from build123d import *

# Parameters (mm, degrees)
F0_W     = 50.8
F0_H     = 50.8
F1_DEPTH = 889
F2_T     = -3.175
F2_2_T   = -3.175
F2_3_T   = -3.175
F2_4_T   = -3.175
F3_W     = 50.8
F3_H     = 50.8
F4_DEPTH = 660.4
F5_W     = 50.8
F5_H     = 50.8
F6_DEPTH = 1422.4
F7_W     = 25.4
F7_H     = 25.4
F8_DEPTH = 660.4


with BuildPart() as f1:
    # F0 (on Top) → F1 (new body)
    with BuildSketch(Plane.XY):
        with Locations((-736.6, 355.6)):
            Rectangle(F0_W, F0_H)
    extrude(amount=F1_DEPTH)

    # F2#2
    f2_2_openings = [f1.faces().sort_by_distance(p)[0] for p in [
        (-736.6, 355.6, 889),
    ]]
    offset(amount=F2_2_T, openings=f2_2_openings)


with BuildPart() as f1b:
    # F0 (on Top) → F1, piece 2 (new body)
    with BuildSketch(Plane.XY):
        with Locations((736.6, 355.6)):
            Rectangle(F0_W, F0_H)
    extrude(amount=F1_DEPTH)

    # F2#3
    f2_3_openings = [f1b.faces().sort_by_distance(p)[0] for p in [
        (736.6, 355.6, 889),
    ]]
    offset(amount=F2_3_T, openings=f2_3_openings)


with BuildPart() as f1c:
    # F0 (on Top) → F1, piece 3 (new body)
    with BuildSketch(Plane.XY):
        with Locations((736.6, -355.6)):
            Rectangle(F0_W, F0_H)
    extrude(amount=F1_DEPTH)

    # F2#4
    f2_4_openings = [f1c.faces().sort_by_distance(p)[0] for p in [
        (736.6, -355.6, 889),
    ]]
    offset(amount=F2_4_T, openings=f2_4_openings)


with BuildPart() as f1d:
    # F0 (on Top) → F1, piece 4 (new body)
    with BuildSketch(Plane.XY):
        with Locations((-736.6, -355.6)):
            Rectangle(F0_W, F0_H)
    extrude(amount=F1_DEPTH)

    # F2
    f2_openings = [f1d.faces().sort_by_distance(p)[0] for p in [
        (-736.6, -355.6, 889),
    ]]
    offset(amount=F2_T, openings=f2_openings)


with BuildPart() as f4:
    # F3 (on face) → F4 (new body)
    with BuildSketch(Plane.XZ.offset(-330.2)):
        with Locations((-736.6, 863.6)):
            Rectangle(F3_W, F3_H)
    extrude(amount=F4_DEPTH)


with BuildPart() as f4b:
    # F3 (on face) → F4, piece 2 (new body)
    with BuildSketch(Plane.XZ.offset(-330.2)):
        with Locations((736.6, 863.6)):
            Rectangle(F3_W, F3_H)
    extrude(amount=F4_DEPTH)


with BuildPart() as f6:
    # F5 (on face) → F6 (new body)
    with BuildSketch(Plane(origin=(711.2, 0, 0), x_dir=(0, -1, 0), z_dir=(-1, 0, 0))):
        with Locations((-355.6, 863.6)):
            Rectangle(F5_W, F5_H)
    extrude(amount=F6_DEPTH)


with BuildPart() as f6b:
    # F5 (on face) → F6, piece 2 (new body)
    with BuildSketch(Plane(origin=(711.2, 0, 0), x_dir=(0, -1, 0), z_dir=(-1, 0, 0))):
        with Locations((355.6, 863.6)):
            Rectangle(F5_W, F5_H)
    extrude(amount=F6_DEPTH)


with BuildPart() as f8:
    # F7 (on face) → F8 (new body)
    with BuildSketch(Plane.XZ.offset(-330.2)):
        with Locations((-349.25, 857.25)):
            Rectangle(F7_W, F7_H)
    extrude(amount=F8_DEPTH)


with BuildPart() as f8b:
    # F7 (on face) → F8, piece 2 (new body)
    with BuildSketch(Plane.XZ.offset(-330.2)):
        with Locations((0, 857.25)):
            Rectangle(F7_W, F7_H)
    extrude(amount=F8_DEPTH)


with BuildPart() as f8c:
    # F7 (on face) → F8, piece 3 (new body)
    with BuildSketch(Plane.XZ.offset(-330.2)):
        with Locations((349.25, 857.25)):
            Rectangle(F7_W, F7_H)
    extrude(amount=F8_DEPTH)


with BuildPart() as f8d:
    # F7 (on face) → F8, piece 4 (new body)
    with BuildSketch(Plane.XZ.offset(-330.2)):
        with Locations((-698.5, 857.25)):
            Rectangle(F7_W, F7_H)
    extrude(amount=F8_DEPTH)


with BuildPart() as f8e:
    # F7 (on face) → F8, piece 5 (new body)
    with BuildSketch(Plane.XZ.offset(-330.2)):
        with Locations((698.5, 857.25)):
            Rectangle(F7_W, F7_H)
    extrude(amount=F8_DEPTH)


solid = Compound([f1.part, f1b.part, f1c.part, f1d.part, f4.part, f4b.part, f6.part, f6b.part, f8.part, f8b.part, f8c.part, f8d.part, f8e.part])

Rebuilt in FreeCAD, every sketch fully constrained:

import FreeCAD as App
import Part
import Sketcher
from FreeCAD import Vector
Q = App.Units.Quantity


def faces_at(feature, points):
    """Names of the faces that lie closest to the given points."""
    faces = feature.Shape.Faces
    near = lambda p: min(range(len(faces)), key=lambda i: faces[i].distToShape(Part.Vertex(*p))[0])
    return sorted({f"Face{near(p) + 1}" for p in points})

doc = App.newDocument("Part")
body = doc.addObject("PartDesign::Body", "Body")

# Sketch on XY plane
sketch1 = body.newObject("Sketcher::SketchObject", "Sketch")
sketch1.AttachmentSupport = (doc.getObject("XY_Plane"), [""])
sketch1.MapMode = "FlatFace"
sketch1.addGeometry(Part.LineSegment(Vector(-762, 381, 0), Vector(-762, 330, 0)), False)
sketch1.addGeometry(Part.LineSegment(Vector(-762, 330, 0), Vector(-711, 330, 0)), False)
sketch1.addGeometry(Part.LineSegment(Vector(-711, 330, 0), Vector(-711, 381, 0)), False)
sketch1.addGeometry(Part.LineSegment(Vector(-711, 381, 0), Vector(-762, 381, 0)), False)
sketch1.addConstraint(Sketcher.Constraint("Coincident", 0, 2, 1, 1))
sketch1.addConstraint(Sketcher.Constraint("Coincident", 1, 2, 2, 1))
sketch1.addConstraint(Sketcher.Constraint("Coincident", 2, 2, 3, 1))
sketch1.addConstraint(Sketcher.Constraint("Coincident", 3, 2, 0, 1))
sketch1.addConstraint(Sketcher.Constraint("Vertical", 0))
sketch1.addConstraint(Sketcher.Constraint("Horizontal", 1))
sketch1.addConstraint(Sketcher.Constraint("Vertical", 2))
sketch1.addConstraint(Sketcher.Constraint("Horizontal", 3))
sketch1.addConstraint(Sketcher.Constraint("Equal", 3, 0))
sketch1.addConstraint(Sketcher.Constraint("DistanceX", 1, 1, 1, 2, Q("2 in")))
sketch1.addConstraint(Sketcher.Constraint("DistanceX", 0, 2, -1, 1, Q("30 in")))
sketch1.addConstraint(Sketcher.Constraint("DistanceY", -1, 1, 0, 2, Q("13 in")))
pad1 = body.newObject("PartDesign::Pad", "Pad")
pad1.Profile = sketch1
pad1.Length = Q("35 in")
doc.recompute()

thickness = body.newObject("PartDesign::Thickness", "Thickness")
thickness.Base = (pad1, faces_at(pad1, [(-736.6, 355.6, 889)]))
thickness.Value = Q("0.125 in")
thickness.Reversed = True
thickness.Join = "Arc"
body2 = doc.addObject("PartDesign::Body", "Body001")

# Sketch on XY plane
sketch2 = body2.newObject("Sketcher::SketchObject", "Sketch001")
sketch2.AttachmentSupport = (doc.getObject("XY_Plane001"), [""])
sketch2.MapMode = "FlatFace"
sketch2.addGeometry(Part.LineSegment(Vector(711, 381, 0), Vector(711, 330, 0)), False)
sketch2.addGeometry(Part.LineSegment(Vector(711, 330, 0), Vector(762, 330, 0)), False)
sketch2.addGeometry(Part.LineSegment(Vector(762, 330, 0), Vector(762, 381, 0)), False)
sketch2.addGeometry(Part.LineSegment(Vector(762, 381, 0), Vector(711, 381, 0)), False)
sketch2.addConstraint(Sketcher.Constraint("Coincident", 0, 2, 1, 1))
sketch2.addConstraint(Sketcher.Constraint("Coincident", 1, 2, 2, 1))
sketch2.addConstraint(Sketcher.Constraint("Coincident", 2, 2, 3, 1))
sketch2.addConstraint(Sketcher.Constraint("Coincident", 3, 2, 0, 1))
sketch2.addConstraint(Sketcher.Constraint("Vertical", 0))
sketch2.addConstraint(Sketcher.Constraint("Horizontal", 1))
sketch2.addConstraint(Sketcher.Constraint("Vertical", 2))
sketch2.addConstraint(Sketcher.Constraint("Horizontal", 3))
sketch2.addConstraint(Sketcher.Constraint("Equal", 3, 0))
sketch2.addConstraint(Sketcher.Constraint("DistanceX", 1, 1, 1, 2, Q("2 in")))
sketch2.addConstraint(Sketcher.Constraint("DistanceX", -1, 1, 0, 2, Q("28 in")))
sketch2.addConstraint(Sketcher.Constraint("DistanceY", -1, 1, 0, 2, Q("13 in")))
pad2 = body2.newObject("PartDesign::Pad", "Pad001")
pad2.Profile = sketch2
pad2.Length = Q("35 in")
doc.recompute()

thickness2 = body2.newObject("PartDesign::Thickness", "Thickness001")
thickness2.Base = (pad2, faces_at(pad2, [(736.6, 355.6, 889)]))
thickness2.Value = Q("0.125 in")
thickness2.Reversed = True
thickness2.Join = "Arc"
body3 = doc.addObject("PartDesign::Body", "Body002")

# Sketch on XY plane
sketch3 = body3.newObject("Sketcher::SketchObject", "Sketch002")
sketch3.AttachmentSupport = (doc.getObject("XY_Plane002"), [""])
sketch3.MapMode = "FlatFace"
sketch3.addGeometry(Part.LineSegment(Vector(711, -330, 0), Vector(711, -381, 0)), False)
sketch3.addGeometry(Part.LineSegment(Vector(711, -381, 0), Vector(762, -381, 0)), False)
sketch3.addGeometry(Part.LineSegment(Vector(762, -381, 0), Vector(762, -330, 0)), False)
sketch3.addGeometry(Part.LineSegment(Vector(762, -330, 0), Vector(711, -330, 0)), False)
sketch3.addConstraint(Sketcher.Constraint("Coincident", 0, 2, 1, 1))
sketch3.addConstraint(Sketcher.Constraint("Coincident", 1, 2, 2, 1))
sketch3.addConstraint(Sketcher.Constraint("Coincident", 2, 2, 3, 1))
sketch3.addConstraint(Sketcher.Constraint("Coincident", 3, 2, 0, 1))
sketch3.addConstraint(Sketcher.Constraint("Vertical", 0))
sketch3.addConstraint(Sketcher.Constraint("Horizontal", 1))
sketch3.addConstraint(Sketcher.Constraint("Vertical", 2))
sketch3.addConstraint(Sketcher.Constraint("Horizontal", 3))
sketch3.addConstraint(Sketcher.Constraint("Equal", 3, 0))
sketch3.addConstraint(Sketcher.Constraint("DistanceX", 1, 1, 1, 2, Q("2 in")))
sketch3.addConstraint(Sketcher.Constraint("DistanceX", -1, 1, 0, 2, Q("28 in")))
sketch3.addConstraint(Sketcher.Constraint("DistanceY", 0, 2, -1, 1, Q("15 in")))
pad3 = body3.newObject("PartDesign::Pad", "Pad002")
pad3.Profile = sketch3
pad3.Length = Q("35 in")
doc.recompute()

thickness3 = body3.newObject("PartDesign::Thickness", "Thickness002")
thickness3.Base = (pad3, faces_at(pad3, [(736.6, -355.6, 889)]))
thickness3.Value = Q("0.125 in")
thickness3.Reversed = True
thickness3.Join = "Arc"
body4 = doc.addObject("PartDesign::Body", "Body003")

# Sketch on XY plane
sketch4 = body4.newObject("Sketcher::SketchObject", "Sketch003")
sketch4.AttachmentSupport = (doc.getObject("XY_Plane003"), [""])
sketch4.MapMode = "FlatFace"
sketch4.addGeometry(Part.LineSegment(Vector(-762, -330, 0), Vector(-762, -381, 0)), False)
sketch4.addGeometry(Part.LineSegment(Vector(-762, -381, 0), Vector(-711, -381, 0)), False)
sketch4.addGeometry(Part.LineSegment(Vector(-711, -381, 0), Vector(-711, -330, 0)), False)
sketch4.addGeometry(Part.LineSegment(Vector(-711, -330, 0), Vector(-762, -330, 0)), False)
sketch4.addConstraint(Sketcher.Constraint("Coincident", 0, 2, 1, 1))
sketch4.addConstraint(Sketcher.Constraint("Coincident", 1, 2, 2, 1))
sketch4.addConstraint(Sketcher.Constraint("Coincident", 2, 2, 3, 1))
sketch4.addConstraint(Sketcher.Constraint("Coincident", 3, 2, 0, 1))
sketch4.addConstraint(Sketcher.Constraint("Vertical", 0))
sketch4.addConstraint(Sketcher.Constraint("Horizontal", 1))
sketch4.addConstraint(Sketcher.Constraint("Vertical", 2))
sketch4.addConstraint(Sketcher.Constraint("Horizontal", 3))
sketch4.addConstraint(Sketcher.Constraint("Equal", 3, 0))
sketch4.addConstraint(Sketcher.Constraint("DistanceX", 1, 1, 1, 2, Q("2 in")))
sketch4.addConstraint(Sketcher.Constraint("DistanceX", 0, 2, -1, 1, Q("30 in")))
sketch4.addConstraint(Sketcher.Constraint("DistanceY", 0, 2, -1, 1, Q("15 in")))
pad4 = body4.newObject("PartDesign::Pad", "Pad003")
pad4.Profile = sketch4
pad4.Length = Q("35 in")
doc.recompute()

thickness4 = body4.newObject("PartDesign::Thickness", "Thickness003")
thickness4.Base = (pad4, faces_at(pad4, [(-736.6, -355.6, 889)]))
thickness4.Value = Q("0.125 in")
thickness4.Reversed = True
thickness4.Join = "Arc"
body5 = doc.addObject("PartDesign::Body", "Body004")

# Sketch on XZ plane
sketch5 = body5.newObject("Sketcher::SketchObject", "Sketch004")
sketch5.AttachmentSupport = (doc.getObject("XZ_Plane004"), [""])
sketch5.MapMode = "FlatFace"
sketch5.AttachmentOffset = App.Placement(Vector(0, 0, -13 * 25.4), App.Rotation())
sketch5.addGeometry(Part.LineSegment(Vector(-762, 889, 0), Vector(-762, 838, 0)), False)
sketch5.addGeometry(Part.LineSegment(Vector(-762, 838, 0), Vector(-711, 838, 0)), False)
sketch5.addGeometry(Part.LineSegment(Vector(-711, 838, 0), Vector(-711, 889, 0)), False)
sketch5.addGeometry(Part.LineSegment(Vector(-711, 889, 0), Vector(-762, 889, 0)), False)
sketch5.addConstraint(Sketcher.Constraint("Coincident", 0, 2, 1, 1))
sketch5.addConstraint(Sketcher.Constraint("Coincident", 1, 2, 2, 1))
sketch5.addConstraint(Sketcher.Constraint("Coincident", 2, 2, 3, 1))
sketch5.addConstraint(Sketcher.Constraint("Coincident", 3, 2, 0, 1))
sketch5.addConstraint(Sketcher.Constraint("Vertical", 0))
sketch5.addConstraint(Sketcher.Constraint("Horizontal", 1))
sketch5.addConstraint(Sketcher.Constraint("Vertical", 2))
sketch5.addConstraint(Sketcher.Constraint("Horizontal", 3))
sketch5.addConstraint(Sketcher.Constraint("Equal", 3, 0))
sketch5.addConstraint(Sketcher.Constraint("DistanceX", 1, 1, 1, 2, Q("2 in")))
sketch5.addConstraint(Sketcher.Constraint("DistanceX", 0, 2, -1, 1, Q("30 in")))
sketch5.addConstraint(Sketcher.Constraint("DistanceY", -1, 1, 0, 2, Q("33 in")))
pad5 = body5.newObject("PartDesign::Pad", "Pad004")
pad5.Profile = sketch5
pad5.Length = Q("26 in")
body6 = doc.addObject("PartDesign::Body", "Body005")

# Sketch on XZ plane
sketch6 = body6.newObject("Sketcher::SketchObject", "Sketch005")
sketch6.AttachmentSupport = (doc.getObject("XZ_Plane005"), [""])
sketch6.MapMode = "FlatFace"
sketch6.AttachmentOffset = App.Placement(Vector(0, 0, -13 * 25.4), App.Rotation())
sketch6.addGeometry(Part.LineSegment(Vector(711, 889, 0), Vector(711, 838, 0)), False)
sketch6.addGeometry(Part.LineSegment(Vector(711, 838, 0), Vector(762, 838, 0)), False)
sketch6.addGeometry(Part.LineSegment(Vector(762, 838, 0), Vector(762, 889, 0)), False)
sketch6.addGeometry(Part.LineSegment(Vector(762, 889, 0), Vector(711, 889, 0)), False)
sketch6.addConstraint(Sketcher.Constraint("Coincident", 0, 2, 1, 1))
sketch6.addConstraint(Sketcher.Constraint("Coincident", 1, 2, 2, 1))
sketch6.addConstraint(Sketcher.Constraint("Coincident", 2, 2, 3, 1))
sketch6.addConstraint(Sketcher.Constraint("Coincident", 3, 2, 0, 1))
sketch6.addConstraint(Sketcher.Constraint("Vertical", 0))
sketch6.addConstraint(Sketcher.Constraint("Horizontal", 1))
sketch6.addConstraint(Sketcher.Constraint("Vertical", 2))
sketch6.addConstraint(Sketcher.Constraint("Horizontal", 3))
sketch6.addConstraint(Sketcher.Constraint("Equal", 3, 0))
sketch6.addConstraint(Sketcher.Constraint("DistanceX", 1, 1, 1, 2, Q("2 in")))
sketch6.addConstraint(Sketcher.Constraint("DistanceX", -1, 1, 0, 2, Q("28 in")))
sketch6.addConstraint(Sketcher.Constraint("DistanceY", -1, 1, 0, 2, Q("33 in")))
pad6 = body6.newObject("PartDesign::Pad", "Pad005")
pad6.Profile = sketch6
pad6.Length = Q("26 in")
body7 = doc.addObject("PartDesign::Body", "Body006")

# Sketch on YZ plane
sketch7 = body7.newObject("Sketcher::SketchObject", "Sketch006")
sketch7.AttachmentSupport = (doc.getObject("YZ_Plane006"), [""])
sketch7.MapMode = "FlatFace"
sketch7.AttachmentOffset = App.Placement(Vector(0, 0, 28 * 25.4), App.Rotation())
sketch7.addGeometry(Part.LineSegment(Vector(381, 889, 0), Vector(381, 838, 0)), False)
sketch7.addGeometry(Part.LineSegment(Vector(381, 838, 0), Vector(330, 838, 0)), False)
sketch7.addGeometry(Part.LineSegment(Vector(330, 838, 0), Vector(330, 889, 0)), False)
sketch7.addGeometry(Part.LineSegment(Vector(330, 889, 0), Vector(381, 889, 0)), False)
sketch7.addConstraint(Sketcher.Constraint("Coincident", 0, 2, 1, 1))
sketch7.addConstraint(Sketcher.Constraint("Coincident", 1, 2, 2, 1))
sketch7.addConstraint(Sketcher.Constraint("Coincident", 2, 2, 3, 1))
sketch7.addConstraint(Sketcher.Constraint("Coincident", 3, 2, 0, 1))
sketch7.addConstraint(Sketcher.Constraint("Vertical", 0))
sketch7.addConstraint(Sketcher.Constraint("Horizontal", 1))
sketch7.addConstraint(Sketcher.Constraint("Vertical", 2))
sketch7.addConstraint(Sketcher.Constraint("Horizontal", 3))
sketch7.addConstraint(Sketcher.Constraint("Equal", 3, 0))
sketch7.addConstraint(Sketcher.Constraint("DistanceX", 1, 2, 1, 1, Q("2 in")))
sketch7.addConstraint(Sketcher.Constraint("DistanceX", -1, 1, 0, 2, Q("15 in")))
sketch7.addConstraint(Sketcher.Constraint("DistanceY", -1, 1, 0, 2, Q("33 in")))
pad7 = body7.newObject("PartDesign::Pad", "Pad006")
pad7.Profile = sketch7
pad7.Length = Q("56 in")
pad7.Reversed = True
body8 = doc.addObject("PartDesign::Body", "Body007")

# Sketch on YZ plane
sketch8 = body8.newObject("Sketcher::SketchObject", "Sketch007")
sketch8.AttachmentSupport = (doc.getObject("YZ_Plane007"), [""])
sketch8.MapMode = "FlatFace"
sketch8.AttachmentOffset = App.Placement(Vector(0, 0, 28 * 25.4), App.Rotation())
sketch8.addGeometry(Part.LineSegment(Vector(-330, 889, 0), Vector(-330, 838, 0)), False)
sketch8.addGeometry(Part.LineSegment(Vector(-330, 838, 0), Vector(-381, 838, 0)), False)
sketch8.addGeometry(Part.LineSegment(Vector(-381, 838, 0), Vector(-381, 889, 0)), False)
sketch8.addGeometry(Part.LineSegment(Vector(-381, 889, 0), Vector(-330, 889, 0)), False)
sketch8.addConstraint(Sketcher.Constraint("Coincident", 0, 2, 1, 1))
sketch8.addConstraint(Sketcher.Constraint("Coincident", 1, 2, 2, 1))
sketch8.addConstraint(Sketcher.Constraint("Coincident", 2, 2, 3, 1))
sketch8.addConstraint(Sketcher.Constraint("Coincident", 3, 2, 0, 1))
sketch8.addConstraint(Sketcher.Constraint("Vertical", 0))
sketch8.addConstraint(Sketcher.Constraint("Horizontal", 1))
sketch8.addConstraint(Sketcher.Constraint("Vertical", 2))
sketch8.addConstraint(Sketcher.Constraint("Horizontal", 3))
sketch8.addConstraint(Sketcher.Constraint("Equal", 3, 0))
sketch8.addConstraint(Sketcher.Constraint("DistanceX", 1, 2, 1, 1, Q("2 in")))
sketch8.addConstraint(Sketcher.Constraint("DistanceX", 0, 2, -1, 1, Q("13 in")))
sketch8.addConstraint(Sketcher.Constraint("DistanceY", -1, 1, 0, 2, Q("33 in")))
pad8 = body8.newObject("PartDesign::Pad", "Pad007")
pad8.Profile = sketch8
pad8.Length = Q("56 in")
pad8.Reversed = True
body9 = doc.addObject("PartDesign::Body", "Body008")

# Sketch on XZ plane
sketch9 = body9.newObject("Sketcher::SketchObject", "Sketch008")
sketch9.AttachmentSupport = (doc.getObject("XZ_Plane008"), [""])
sketch9.MapMode = "FlatFace"
sketch9.AttachmentOffset = App.Placement(Vector(0, 0, -13 * 25.4), App.Rotation())
sketch9.addGeometry(Part.LineSegment(Vector(-362, 870, 0), Vector(-362, 845, 0)), False)
sketch9.addGeometry(Part.LineSegment(Vector(-362, 845, 0), Vector(-337, 845, 0)), False)
sketch9.addGeometry(Part.LineSegment(Vector(-337, 845, 0), Vector(-337, 870, 0)), False)
sketch9.addGeometry(Part.LineSegment(Vector(-337, 870, 0), Vector(-362, 870, 0)), False)
sketch9.addConstraint(Sketcher.Constraint("Coincident", 0, 2, 1, 1))
sketch9.addConstraint(Sketcher.Constraint("Coincident", 1, 2, 2, 1))
sketch9.addConstraint(Sketcher.Constraint("Coincident", 2, 2, 3, 1))
sketch9.addConstraint(Sketcher.Constraint("Coincident", 3, 2, 0, 1))
sketch9.addConstraint(Sketcher.Constraint("Vertical", 0))
sketch9.addConstraint(Sketcher.Constraint("Horizontal", 1))
sketch9.addConstraint(Sketcher.Constraint("Vertical", 2))
sketch9.addConstraint(Sketcher.Constraint("Horizontal", 3))
sketch9.addConstraint(Sketcher.Constraint("Equal", 3, 0))
sketch9.addConstraint(Sketcher.Constraint("DistanceX", 1, 1, 1, 2, Q("1 in")))
sketch9.addConstraint(Sketcher.Constraint("DistanceX", 0, 2, -1, 1, Q("14.25 in")))
sketch9.addConstraint(Sketcher.Constraint("DistanceY", -1, 1, 0, 2, Q("33.25 in")))
pad9 = body9.newObject("PartDesign::Pad", "Pad008")
pad9.Profile = sketch9
pad9.Length = Q("26 in")
body10 = doc.addObject("PartDesign::Body", "Body009")

# Sketch on XZ plane
sketch10 = body10.newObject("Sketcher::SketchObject", "Sketch009")
sketch10.AttachmentSupport = (doc.getObject("XZ_Plane009"), [""])
sketch10.MapMode = "FlatFace"
sketch10.AttachmentOffset = App.Placement(Vector(0, 0, -13 * 25.4), App.Rotation())
sketch10.addGeometry(Part.LineSegment(Vector(-13, 870, 0), Vector(-13, 845, 0)), False)
sketch10.addGeometry(Part.LineSegment(Vector(-13, 845, 0), Vector(13, 845, 0)), False)
sketch10.addGeometry(Part.LineSegment(Vector(13, 845, 0), Vector(13, 870, 0)), False)
sketch10.addGeometry(Part.LineSegment(Vector(13, 870, 0), Vector(-13, 870, 0)), False)
sketch10.addConstraint(Sketcher.Constraint("Coincident", 0, 2, 1, 1))
sketch10.addConstraint(Sketcher.Constraint("Coincident", 1, 2, 2, 1))
sketch10.addConstraint(Sketcher.Constraint("Coincident", 2, 2, 3, 1))
sketch10.addConstraint(Sketcher.Constraint("Coincident", 3, 2, 0, 1))
sketch10.addConstraint(Sketcher.Constraint("Vertical", 0))
sketch10.addConstraint(Sketcher.Constraint("Horizontal", 1))
sketch10.addConstraint(Sketcher.Constraint("Vertical", 2))
sketch10.addConstraint(Sketcher.Constraint("Horizontal", 3))
sketch10.addConstraint(Sketcher.Constraint("Equal", 3, 0))
sketch10.addConstraint(Sketcher.Constraint("DistanceX", 1, 1, 1, 2, Q("1 in")))
sketch10.addConstraint(Sketcher.Constraint("DistanceX", 0, 2, -1, 1, Q("0.5 in")))
sketch10.addConstraint(Sketcher.Constraint("DistanceY", -1, 1, 0, 2, Q("33.25 in")))
pad10 = body10.newObject("PartDesign::Pad", "Pad009")
pad10.Profile = sketch10
pad10.Length = Q("26 in")
body11 = doc.addObject("PartDesign::Body", "Body010")

# Sketch on XZ plane
sketch11 = body11.newObject("Sketcher::SketchObject", "Sketch010")
sketch11.AttachmentSupport = (doc.getObject("XZ_Plane010"), [""])
sketch11.MapMode = "FlatFace"
sketch11.AttachmentOffset = App.Placement(Vector(0, 0, -13 * 25.4), App.Rotation())
sketch11.addGeometry(Part.LineSegment(Vector(337, 870, 0), Vector(337, 845, 0)), False)
sketch11.addGeometry(Part.LineSegment(Vector(337, 845, 0), Vector(362, 845, 0)), False)
sketch11.addGeometry(Part.LineSegment(Vector(362, 845, 0), Vector(362, 870, 0)), False)
sketch11.addGeometry(Part.LineSegment(Vector(362, 870, 0), Vector(337, 870, 0)), False)
sketch11.addConstraint(Sketcher.Constraint("Coincident", 0, 2, 1, 1))
sketch11.addConstraint(Sketcher.Constraint("Coincident", 1, 2, 2, 1))
sketch11.addConstraint(Sketcher.Constraint("Coincident", 2, 2, 3, 1))
sketch11.addConstraint(Sketcher.Constraint("Coincident", 3, 2, 0, 1))
sketch11.addConstraint(Sketcher.Constraint("Vertical", 0))
sketch11.addConstraint(Sketcher.Constraint("Horizontal", 1))
sketch11.addConstraint(Sketcher.Constraint("Vertical", 2))
sketch11.addConstraint(Sketcher.Constraint("Horizontal", 3))
sketch11.addConstraint(Sketcher.Constraint("Equal", 3, 0))
sketch11.addConstraint(Sketcher.Constraint("DistanceX", 1, 1, 1, 2, Q("1 in")))
sketch11.addConstraint(Sketcher.Constraint("DistanceX", -1, 1, 0, 2, Q("13.25 in")))
sketch11.addConstraint(Sketcher.Constraint("DistanceY", -1, 1, 0, 2, Q("33.25 in")))
pad11 = body11.newObject("PartDesign::Pad", "Pad010")
pad11.Profile = sketch11
pad11.Length = Q("26 in")
body12 = doc.addObject("PartDesign::Body", "Body011")

# Sketch on XZ plane
sketch12 = body12.newObject("Sketcher::SketchObject", "Sketch011")
sketch12.AttachmentSupport = (doc.getObject("XZ_Plane011"), [""])
sketch12.MapMode = "FlatFace"
sketch12.AttachmentOffset = App.Placement(Vector(0, 0, -13 * 25.4), App.Rotation())
sketch12.addGeometry(Part.LineSegment(Vector(-711, 870, 0), Vector(-711, 845, 0)), False)
sketch12.addGeometry(Part.LineSegment(Vector(-711, 845, 0), Vector(-686, 845, 0)), False)
sketch12.addGeometry(Part.LineSegment(Vector(-686, 845, 0), Vector(-686, 870, 0)), False)
sketch12.addGeometry(Part.LineSegment(Vector(-686, 870, 0), Vector(-711, 870, 0)), False)
sketch12.addConstraint(Sketcher.Constraint("Coincident", 0, 2, 1, 1))
sketch12.addConstraint(Sketcher.Constraint("Coincident", 1, 2, 2, 1))
sketch12.addConstraint(Sketcher.Constraint("Coincident", 2, 2, 3, 1))
sketch12.addConstraint(Sketcher.Constraint("Coincident", 3, 2, 0, 1))
sketch12.addConstraint(Sketcher.Constraint("Vertical", 0))
sketch12.addConstraint(Sketcher.Constraint("Horizontal", 1))
sketch12.addConstraint(Sketcher.Constraint("Vertical", 2))
sketch12.addConstraint(Sketcher.Constraint("Horizontal", 3))
sketch12.addConstraint(Sketcher.Constraint("Equal", 3, 0))
sketch12.addConstraint(Sketcher.Constraint("DistanceX", 1, 1, 1, 2, Q("1 in")))
sketch12.addConstraint(Sketcher.Constraint("DistanceX", 0, 2, -1, 1, Q("28 in")))
sketch12.addConstraint(Sketcher.Constraint("DistanceY", -1, 1, 0, 2, Q("33.25 in")))
pad12 = body12.newObject("PartDesign::Pad", "Pad011")
pad12.Profile = sketch12
pad12.Length = Q("26 in")
body13 = doc.addObject("PartDesign::Body", "Body012")

# Sketch on XZ plane
sketch13 = body13.newObject("Sketcher::SketchObject", "Sketch012")
sketch13.AttachmentSupport = (doc.getObject("XZ_Plane012"), [""])
sketch13.MapMode = "FlatFace"
sketch13.AttachmentOffset = App.Placement(Vector(0, 0, -13 * 25.4), App.Rotation())
sketch13.addGeometry(Part.LineSegment(Vector(686, 870, 0), Vector(686, 845, 0)), False)
sketch13.addGeometry(Part.LineSegment(Vector(686, 845, 0), Vector(711, 845, 0)), False)
sketch13.addGeometry(Part.LineSegment(Vector(711, 845, 0), Vector(711, 870, 0)), False)
sketch13.addGeometry(Part.LineSegment(Vector(711, 870, 0), Vector(686, 870, 0)), False)
sketch13.addConstraint(Sketcher.Constraint("Coincident", 0, 2, 1, 1))
sketch13.addConstraint(Sketcher.Constraint("Coincident", 1, 2, 2, 1))
sketch13.addConstraint(Sketcher.Constraint("Coincident", 2, 2, 3, 1))
sketch13.addConstraint(Sketcher.Constraint("Coincident", 3, 2, 0, 1))
sketch13.addConstraint(Sketcher.Constraint("Vertical", 0))
sketch13.addConstraint(Sketcher.Constraint("Horizontal", 1))
sketch13.addConstraint(Sketcher.Constraint("Vertical", 2))
sketch13.addConstraint(Sketcher.Constraint("Horizontal", 3))
sketch13.addConstraint(Sketcher.Constraint("Equal", 3, 0))
sketch13.addConstraint(Sketcher.Constraint("DistanceX", 1, 1, 1, 2, Q("1 in")))
sketch13.addConstraint(Sketcher.Constraint("DistanceX", -1, 1, 0, 2, Q("27 in")))
sketch13.addConstraint(Sketcher.Constraint("DistanceY", -1, 1, 0, 2, Q("33.25 in")))
pad13 = body13.newObject("PartDesign::Pad", "Pad012")
pad13.Profile = sketch13
pad13.Length = Q("26 in")

doc.recompute()
